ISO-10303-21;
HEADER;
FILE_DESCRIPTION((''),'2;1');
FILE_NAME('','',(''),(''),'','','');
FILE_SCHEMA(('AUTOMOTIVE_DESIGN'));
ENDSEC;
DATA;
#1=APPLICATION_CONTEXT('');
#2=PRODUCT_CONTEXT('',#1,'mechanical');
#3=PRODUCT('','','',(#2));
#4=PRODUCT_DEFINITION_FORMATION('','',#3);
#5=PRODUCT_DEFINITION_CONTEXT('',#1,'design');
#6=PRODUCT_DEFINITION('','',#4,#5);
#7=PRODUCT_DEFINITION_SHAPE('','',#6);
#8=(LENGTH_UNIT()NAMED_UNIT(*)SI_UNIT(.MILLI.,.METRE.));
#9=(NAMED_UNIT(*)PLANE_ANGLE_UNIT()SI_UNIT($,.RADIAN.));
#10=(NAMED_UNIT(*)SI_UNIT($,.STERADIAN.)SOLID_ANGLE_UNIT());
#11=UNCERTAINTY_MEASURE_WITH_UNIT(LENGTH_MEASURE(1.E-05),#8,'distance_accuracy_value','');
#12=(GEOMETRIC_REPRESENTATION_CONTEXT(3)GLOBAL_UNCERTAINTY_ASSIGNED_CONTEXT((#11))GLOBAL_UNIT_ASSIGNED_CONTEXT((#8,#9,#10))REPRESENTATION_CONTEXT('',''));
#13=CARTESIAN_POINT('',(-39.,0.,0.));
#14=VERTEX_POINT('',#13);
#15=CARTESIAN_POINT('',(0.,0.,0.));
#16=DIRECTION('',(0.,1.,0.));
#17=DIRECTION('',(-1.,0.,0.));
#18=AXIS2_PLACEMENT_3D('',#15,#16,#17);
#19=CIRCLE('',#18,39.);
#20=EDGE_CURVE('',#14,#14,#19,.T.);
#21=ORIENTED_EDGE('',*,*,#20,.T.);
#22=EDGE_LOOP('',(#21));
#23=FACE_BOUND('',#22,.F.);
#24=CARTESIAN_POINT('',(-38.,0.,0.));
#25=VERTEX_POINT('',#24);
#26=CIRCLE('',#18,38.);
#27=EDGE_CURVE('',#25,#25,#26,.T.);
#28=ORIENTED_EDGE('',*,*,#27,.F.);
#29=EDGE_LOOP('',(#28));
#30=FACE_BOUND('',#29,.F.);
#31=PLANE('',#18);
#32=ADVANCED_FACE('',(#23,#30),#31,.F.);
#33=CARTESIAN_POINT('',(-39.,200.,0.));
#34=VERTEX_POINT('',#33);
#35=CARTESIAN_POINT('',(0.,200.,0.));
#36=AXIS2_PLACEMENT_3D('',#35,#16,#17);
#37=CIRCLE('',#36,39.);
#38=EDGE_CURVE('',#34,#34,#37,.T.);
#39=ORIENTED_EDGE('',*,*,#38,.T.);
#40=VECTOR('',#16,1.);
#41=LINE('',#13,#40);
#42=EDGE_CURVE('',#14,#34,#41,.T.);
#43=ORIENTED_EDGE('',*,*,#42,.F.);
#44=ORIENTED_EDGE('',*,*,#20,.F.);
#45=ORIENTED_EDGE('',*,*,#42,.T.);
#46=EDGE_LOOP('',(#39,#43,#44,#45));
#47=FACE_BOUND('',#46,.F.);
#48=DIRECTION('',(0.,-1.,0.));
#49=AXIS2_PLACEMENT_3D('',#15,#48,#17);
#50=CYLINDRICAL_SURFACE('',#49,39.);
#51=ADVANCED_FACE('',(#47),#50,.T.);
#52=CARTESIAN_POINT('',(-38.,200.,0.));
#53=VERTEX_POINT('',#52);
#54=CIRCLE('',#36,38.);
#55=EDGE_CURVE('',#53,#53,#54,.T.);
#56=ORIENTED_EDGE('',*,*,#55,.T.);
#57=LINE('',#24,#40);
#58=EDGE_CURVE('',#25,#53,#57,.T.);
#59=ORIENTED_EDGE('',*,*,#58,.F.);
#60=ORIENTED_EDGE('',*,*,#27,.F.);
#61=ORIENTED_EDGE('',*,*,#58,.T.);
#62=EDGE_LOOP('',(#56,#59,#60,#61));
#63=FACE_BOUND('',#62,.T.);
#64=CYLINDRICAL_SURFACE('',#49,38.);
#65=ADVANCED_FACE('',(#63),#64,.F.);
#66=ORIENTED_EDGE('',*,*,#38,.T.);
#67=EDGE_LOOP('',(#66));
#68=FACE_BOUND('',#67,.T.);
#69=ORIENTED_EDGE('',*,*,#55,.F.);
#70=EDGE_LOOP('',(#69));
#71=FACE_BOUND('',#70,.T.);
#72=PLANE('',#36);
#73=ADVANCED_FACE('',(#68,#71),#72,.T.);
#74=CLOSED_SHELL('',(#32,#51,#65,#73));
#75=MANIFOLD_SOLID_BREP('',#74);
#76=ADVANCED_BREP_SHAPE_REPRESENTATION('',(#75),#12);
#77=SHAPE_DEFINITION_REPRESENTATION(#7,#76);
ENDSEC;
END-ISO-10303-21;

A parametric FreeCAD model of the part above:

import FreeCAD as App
import Part
import Sketcher
Q = App.Units.Quantity

doc = App.newDocument("Part")
body = doc.addObject("PartDesign::Body", "Body")

sketch1 = doc.addObject("Sketcher::SketchObject", "Sketch")
body.addObject(sketch1)
sketch1.AttachmentSupport = (doc.XZ_Plane, [""])
sketch1.MapMode = "FlatFace"
sketch1.addGeometry(Part.Circle(App.Vector(0, 0, 0), App.Vector(0, 0, 1), 39), False)
sketch1.addGeometry(Part.Circle(App.Vector(0, 0, 0), App.Vector(0, 0, 1), 38), False)
sketch1.addConstraint(Sketcher.Constraint("Coincident", 0, 3, -1, 1))
sketch1.addConstraint(Sketcher.Constraint("Coincident", 1, 3, -1, 1))
sketch1.addConstraint(Sketcher.Constraint("Diameter", 0, Q("78 mm")))
sketch1.addConstraint(Sketcher.Constraint("Diameter", 1, Q("76 mm")))
pad1 = doc.addObject("PartDesign::Pad", "Pad")
body.addObject(pad1)
pad1.Profile = sketch1
pad1.Length = 200
pad1.Reversed = True

doc.recompute()
